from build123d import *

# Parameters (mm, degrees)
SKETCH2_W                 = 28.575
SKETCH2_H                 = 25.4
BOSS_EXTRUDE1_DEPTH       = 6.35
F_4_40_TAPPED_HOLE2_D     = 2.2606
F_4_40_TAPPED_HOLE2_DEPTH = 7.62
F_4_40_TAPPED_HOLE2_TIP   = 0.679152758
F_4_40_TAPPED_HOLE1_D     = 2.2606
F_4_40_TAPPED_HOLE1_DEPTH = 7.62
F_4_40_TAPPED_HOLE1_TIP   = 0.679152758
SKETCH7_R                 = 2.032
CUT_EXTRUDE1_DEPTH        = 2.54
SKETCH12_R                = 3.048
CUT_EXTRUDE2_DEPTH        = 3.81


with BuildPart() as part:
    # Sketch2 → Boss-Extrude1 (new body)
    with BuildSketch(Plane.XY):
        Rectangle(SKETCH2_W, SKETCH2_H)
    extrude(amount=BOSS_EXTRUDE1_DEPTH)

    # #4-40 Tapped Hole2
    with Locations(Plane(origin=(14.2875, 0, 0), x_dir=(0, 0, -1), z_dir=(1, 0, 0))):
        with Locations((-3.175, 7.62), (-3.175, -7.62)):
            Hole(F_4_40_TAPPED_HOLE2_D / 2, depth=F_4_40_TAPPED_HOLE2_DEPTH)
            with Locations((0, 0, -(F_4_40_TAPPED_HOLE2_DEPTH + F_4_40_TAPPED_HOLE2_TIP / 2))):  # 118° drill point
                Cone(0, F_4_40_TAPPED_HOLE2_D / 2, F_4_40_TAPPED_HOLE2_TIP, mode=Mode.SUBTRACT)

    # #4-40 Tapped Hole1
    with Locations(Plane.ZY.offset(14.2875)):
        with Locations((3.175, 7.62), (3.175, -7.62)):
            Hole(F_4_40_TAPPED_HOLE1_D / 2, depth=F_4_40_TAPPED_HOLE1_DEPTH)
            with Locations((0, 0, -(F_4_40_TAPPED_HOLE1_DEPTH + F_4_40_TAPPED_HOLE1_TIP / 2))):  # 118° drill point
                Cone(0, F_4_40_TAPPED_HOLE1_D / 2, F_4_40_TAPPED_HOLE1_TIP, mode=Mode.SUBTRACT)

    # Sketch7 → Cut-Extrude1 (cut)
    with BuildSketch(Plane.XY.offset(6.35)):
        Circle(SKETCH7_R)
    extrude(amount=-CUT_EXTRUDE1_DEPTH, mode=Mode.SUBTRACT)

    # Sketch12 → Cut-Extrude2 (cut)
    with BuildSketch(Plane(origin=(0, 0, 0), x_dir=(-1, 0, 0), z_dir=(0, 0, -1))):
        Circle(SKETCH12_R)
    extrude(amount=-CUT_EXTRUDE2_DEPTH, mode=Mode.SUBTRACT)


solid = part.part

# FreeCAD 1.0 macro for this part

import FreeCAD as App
import Part
import Sketcher
Q = App.Units.Quantity

doc = App.newDocument("Part")
params = doc.addObject("Spreadsheet::Sheet", "Params")
for row, (alias, value) in enumerate([
    ("sketch1_height", "1 in"),
    ("sketch1_width", "1.125 in"),
    ("pad1_length", "0.25 in"),
    ("sketch2_diameter", "0.089 in"),
    ("hole_diameter", "0.089 in"),
    ("hole_depth", "0.3 in"),
    ("sketch3_diameter", "0.089 in"),
    ("hole2_diameter", "0.089 in"),
    ("hole2_depth", "0.3 in"),
    ("sketch4_diameter", "0.16 in"),
    ("pocket1_length", "0.1 in"),
    ("sketch5_diameter", "0.24 in"),
    ("pocket2_length", "0.15 in"),
], start=1):
    params.set(f"A{row}", alias)
    params.set(f"B{row}", "=" + value)
    params.setAlias(f"B{row}", alias)

body = doc.addObject("PartDesign::Body", "Body")

sketch1 = body.newObject("Sketcher::SketchObject", "Sketch")
sketch1.AttachmentSupport = (doc.getObject("XY_Plane"), [""])
sketch1.MapMode = "FlatFace"
sketch1.addGeometry([
    Part.LineSegment(App.Vector(-14, 13, 0), App.Vector(-14, -13, 0)),
    Part.LineSegment(App.Vector(-14, -13, 0), App.Vector(14, -13, 0)),
    Part.LineSegment(App.Vector(14, -13, 0), App.Vector(14, 13, 0)),
    Part.LineSegment(App.Vector(14, 13, 0), App.Vector(-14, 13, 0)),
], False)
sketch1.addConstraint([
    Sketcher.Constraint("Coincident", 0, 2, 1, 1),
    Sketcher.Constraint("Coincident", 1, 2, 2, 1),
    Sketcher.Constraint("Coincident", 2, 2, 3, 1),
    Sketcher.Constraint("Coincident", 3, 2, 0, 1),
    Sketcher.Constraint("Vertical", 0),
    Sketcher.Constraint("Horizontal", 1),
    Sketcher.Constraint("Vertical", 2),
    Sketcher.Constraint("Horizontal", 3),
    Sketcher.Constraint("Symmetric", 0, 2, 2, 2, -1, 1),
    Sketcher.Constraint("DistanceY", 0, 2, 0, 1, Q("1 in")),
    Sketcher.Constraint("DistanceX", 1, 1, 1, 2, Q("1.125 in")),
])
sketch1.setExpression("Constraints[9]", "Params.sketch1_height")
sketch1.setExpression("Constraints[10]", "Params.sketch1_width")
pad1 = body.newObject("PartDesign::Pad", "Pad")
pad1.Profile = sketch1
pad1.setExpression("Length", "Params.pad1_length")

sketch2 = body.newObject("Sketcher::SketchObject", "Sketch001")
sketch2.AttachmentSupport = (doc.getObject("YZ_Plane"), [""])
sketch2.MapMode = "FlatFace"
sketch2.AttachmentOffset = App.Placement(App.Vector(0, 0, 0.5625 * 25.4), App.Rotation())
sketch2.addGeometry([
    Part.Circle(App.Vector(7.6, 3.2, 0), App.Vector(0, 0, 1), 1.1),
    Part.Circle(App.Vector(-7.6, 3.2, 0), App.Vector(0, 0, 1), 1.1),
], False)
sketch2.addConstraint([
    Sketcher.Constraint("Equal", 0, 1),
    Sketcher.Constraint("Symmetric", 0, 3, 1, 3, -2),
    Sketcher.Constraint("Diameter", 0, Q("0.089 in")),
    Sketcher.Constraint("DistanceX", -1, 1, 0, 3, Q("0.3 in")),
    Sketcher.Constraint("DistanceY", -1, 1, 0, 3, Q("0.125 in")),
])
sketch2.setExpression("Constraints[2]", "Params.sketch2_diameter")
doc.recompute()
hole = body.newObject("PartDesign::Hole", "Hole")
hole.Profile = sketch2
hole.ThreadType = "None"
hole.setExpression("Diameter", "Params.hole_diameter")
hole.DepthType = "Dimension"
hole.setExpression("Depth", "Params.hole_depth")
hole.DrillPoint = "Angled"
hole.DrillPointAngle = 118

sketch3 = body.newObject("Sketcher::SketchObject", "Sketch002")
sketch3.AttachmentSupport = (doc.getObject("YZ_Plane"), [""])
sketch3.MapMode = "FlatFace"
sketch3.AttachmentOffset = App.Placement(App.Vector(0, 0, -0.5625 * 25.4), App.Rotation())
sketch3.addGeometry([
    Part.Circle(App.Vector(7.6, 3.2, 0), App.Vector(0, 0, 1), 1.1),
    Part.Circle(App.Vector(-7.6, 3.2, 0), App.Vector(0, 0, 1), 1.1),
], False)
sketch3.addConstraint([
    Sketcher.Constraint("Equal", 0, 1),
    Sketcher.Constraint("Symmetric", 0, 3, 1, 3, -2),
    Sketcher.Constraint("Diameter", 0, Q("0.089 in")),
    Sketcher.Constraint("DistanceX", -1, 1, 0, 3, Q("0.3 in")),
    Sketcher.Constraint("DistanceY", -1, 1, 0, 3, Q("0.125 in")),
])
sketch3.setExpression("Constraints[2]", "Params.sketch3_diameter")
doc.recompute()
hole2 = body.newObject("PartDesign::Hole", "Hole001")
hole2.Profile = sketch3
hole2.ThreadType = "None"
hole2.setExpression("Diameter", "Params.hole2_diameter")
hole2.DepthType = "Dimension"
hole2.setExpression("Depth", "Params.hole2_depth")
hole2.DrillPoint = "Angled"
hole2.DrillPointAngle = 118
hole2.Reversed = True

sketch4 = body.newObject("Sketcher::SketchObject", "Sketch003")
sketch4.AttachmentSupport = (doc.getObject("XY_Plane"), [""])
sketch4.MapMode = "FlatFace"
sketch4.AttachmentOffset = App.Placement(App.Vector(0, 0, 0.25 * 25.4), App.Rotation())
sketch4.addGeometry(Part.Circle(App.Vector(0, 0, 0), App.Vector(0, 0, 1), 2), False)
sketch4.addConstraint([
    Sketcher.Constraint("Coincident", 0, 3, -1, 1),
    Sketcher.Constraint("Diameter", 0, Q("0.16 in")),
])
sketch4.setExpression("Constraints[1]", "Params.sketch4_diameter")
pocket1 = body.newObject("PartDesign::Pocket", "Pocket")
pocket1.Profile = sketch4
pocket1.setExpression("Length", "Params.pocket1_length")

sketch5 = body.newObject("Sketcher::SketchObject", "Sketch004")
sketch5.AttachmentSupport = (doc.getObject("XY_Plane"), [""])
sketch5.MapMode = "FlatFace"
sketch5.addGeometry(Part.Circle(App.Vector(0, 0, 0), App.Vector(0, 0, 1), 3), False)
sketch5.addConstraint([
    Sketcher.Constraint("Coincident", 0, 3, -1, 1),
    Sketcher.Constraint("Diameter", 0, Q("0.24 in")),
])
sketch5.setExpression("Constraints[1]", "Params.sketch5_diameter")
pocket2 = body.newObject("PartDesign::Pocket", "Pocket001")
pocket2.Profile = sketch5
pocket2.setExpression("Length", "Params.pocket2_length")
pocket2.Reversed = True

doc.recompute()
